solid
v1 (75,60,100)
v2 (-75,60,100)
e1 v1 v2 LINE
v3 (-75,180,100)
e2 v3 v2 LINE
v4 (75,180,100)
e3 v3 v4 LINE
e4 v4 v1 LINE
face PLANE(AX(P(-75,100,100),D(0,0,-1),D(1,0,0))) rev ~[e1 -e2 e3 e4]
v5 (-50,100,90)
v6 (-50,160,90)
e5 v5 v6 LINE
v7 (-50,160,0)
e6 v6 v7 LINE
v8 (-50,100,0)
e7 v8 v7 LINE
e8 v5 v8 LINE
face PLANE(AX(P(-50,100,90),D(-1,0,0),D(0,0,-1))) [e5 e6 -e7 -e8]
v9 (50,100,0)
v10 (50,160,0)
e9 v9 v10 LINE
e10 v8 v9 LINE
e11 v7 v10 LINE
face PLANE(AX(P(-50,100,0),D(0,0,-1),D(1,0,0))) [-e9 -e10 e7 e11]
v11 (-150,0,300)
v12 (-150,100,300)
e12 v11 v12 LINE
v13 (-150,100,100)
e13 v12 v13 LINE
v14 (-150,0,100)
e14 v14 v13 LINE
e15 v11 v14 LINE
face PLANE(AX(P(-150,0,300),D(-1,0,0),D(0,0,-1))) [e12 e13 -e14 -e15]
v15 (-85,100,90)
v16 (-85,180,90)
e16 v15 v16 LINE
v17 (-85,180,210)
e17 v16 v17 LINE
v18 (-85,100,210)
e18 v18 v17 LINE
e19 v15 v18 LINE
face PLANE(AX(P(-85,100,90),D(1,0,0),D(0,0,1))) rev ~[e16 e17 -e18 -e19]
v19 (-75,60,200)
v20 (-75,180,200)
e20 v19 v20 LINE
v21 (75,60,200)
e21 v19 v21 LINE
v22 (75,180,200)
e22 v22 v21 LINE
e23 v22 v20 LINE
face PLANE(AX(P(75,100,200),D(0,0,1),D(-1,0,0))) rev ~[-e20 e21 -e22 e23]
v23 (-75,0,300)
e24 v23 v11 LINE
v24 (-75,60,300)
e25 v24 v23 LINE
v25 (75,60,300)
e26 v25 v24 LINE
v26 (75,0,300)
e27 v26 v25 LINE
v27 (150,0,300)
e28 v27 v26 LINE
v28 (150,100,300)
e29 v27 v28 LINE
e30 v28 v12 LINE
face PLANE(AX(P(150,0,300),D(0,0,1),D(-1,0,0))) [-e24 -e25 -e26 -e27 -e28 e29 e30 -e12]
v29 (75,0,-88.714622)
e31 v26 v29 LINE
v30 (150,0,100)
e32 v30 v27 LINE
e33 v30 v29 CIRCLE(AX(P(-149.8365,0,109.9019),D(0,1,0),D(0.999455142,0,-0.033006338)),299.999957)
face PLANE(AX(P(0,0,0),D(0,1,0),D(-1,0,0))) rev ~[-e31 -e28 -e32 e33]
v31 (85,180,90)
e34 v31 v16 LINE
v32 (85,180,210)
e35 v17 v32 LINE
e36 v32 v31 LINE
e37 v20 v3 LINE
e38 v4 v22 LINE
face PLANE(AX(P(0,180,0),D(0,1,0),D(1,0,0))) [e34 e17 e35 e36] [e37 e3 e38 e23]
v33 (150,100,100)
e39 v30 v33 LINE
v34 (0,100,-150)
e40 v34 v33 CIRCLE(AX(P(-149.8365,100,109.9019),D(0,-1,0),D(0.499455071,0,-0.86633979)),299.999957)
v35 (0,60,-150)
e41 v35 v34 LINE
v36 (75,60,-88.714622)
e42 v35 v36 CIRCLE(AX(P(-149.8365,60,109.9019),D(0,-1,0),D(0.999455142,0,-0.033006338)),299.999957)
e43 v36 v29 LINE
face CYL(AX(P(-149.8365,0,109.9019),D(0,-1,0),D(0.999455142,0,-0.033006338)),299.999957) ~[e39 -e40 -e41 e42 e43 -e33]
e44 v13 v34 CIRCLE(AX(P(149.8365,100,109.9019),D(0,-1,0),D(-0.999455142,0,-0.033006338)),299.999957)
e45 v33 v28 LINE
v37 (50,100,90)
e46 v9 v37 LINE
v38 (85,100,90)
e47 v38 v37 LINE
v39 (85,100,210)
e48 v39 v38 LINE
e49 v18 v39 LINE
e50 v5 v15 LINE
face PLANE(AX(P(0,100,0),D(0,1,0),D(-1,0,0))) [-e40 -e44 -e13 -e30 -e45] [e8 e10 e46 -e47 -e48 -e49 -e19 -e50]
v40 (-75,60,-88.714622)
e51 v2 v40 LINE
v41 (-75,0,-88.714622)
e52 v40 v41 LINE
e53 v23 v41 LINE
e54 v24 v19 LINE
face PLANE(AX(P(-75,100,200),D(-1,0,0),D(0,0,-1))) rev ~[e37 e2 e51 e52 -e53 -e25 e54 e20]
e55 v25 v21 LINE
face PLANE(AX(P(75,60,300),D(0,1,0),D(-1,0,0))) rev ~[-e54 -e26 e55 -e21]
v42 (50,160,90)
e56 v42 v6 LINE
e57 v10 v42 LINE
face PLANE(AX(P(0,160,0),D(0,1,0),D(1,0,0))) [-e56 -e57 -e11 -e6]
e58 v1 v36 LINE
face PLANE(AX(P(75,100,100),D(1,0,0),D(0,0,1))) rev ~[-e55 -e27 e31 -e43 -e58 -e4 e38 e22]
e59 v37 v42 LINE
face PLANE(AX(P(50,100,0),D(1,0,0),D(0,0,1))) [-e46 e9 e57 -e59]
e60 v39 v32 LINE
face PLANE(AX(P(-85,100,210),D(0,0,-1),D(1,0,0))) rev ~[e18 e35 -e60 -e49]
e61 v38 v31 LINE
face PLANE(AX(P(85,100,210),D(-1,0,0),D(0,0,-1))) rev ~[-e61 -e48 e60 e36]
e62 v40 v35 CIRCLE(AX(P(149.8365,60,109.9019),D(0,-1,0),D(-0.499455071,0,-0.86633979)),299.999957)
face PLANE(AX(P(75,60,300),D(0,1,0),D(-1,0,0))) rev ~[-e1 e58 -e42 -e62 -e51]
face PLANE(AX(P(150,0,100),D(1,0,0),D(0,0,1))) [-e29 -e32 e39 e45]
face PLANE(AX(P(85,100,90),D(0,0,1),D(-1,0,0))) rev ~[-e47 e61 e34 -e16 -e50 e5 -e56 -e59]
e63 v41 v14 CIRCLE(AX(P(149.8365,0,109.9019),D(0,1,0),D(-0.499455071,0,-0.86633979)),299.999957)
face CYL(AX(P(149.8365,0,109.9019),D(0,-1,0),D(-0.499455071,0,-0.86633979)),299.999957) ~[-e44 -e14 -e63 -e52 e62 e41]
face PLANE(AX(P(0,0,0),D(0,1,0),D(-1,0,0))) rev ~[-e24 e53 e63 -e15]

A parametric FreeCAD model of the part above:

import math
import FreeCAD as App
import Part
import Sketcher

V = App.Vector
Q = App.Units.Quantity

doc = App.newDocument("Part")
body = doc.addObject("PartDesign::Body", "Body")

# Sketch on XZ plane
sketch1 = doc.addObject("Sketcher::SketchObject", "Sketch")
body.addObject(sketch1)
sketch1.AttachmentSupport = (doc.XZ_Plane, [""])
sketch1.MapMode = "FlatFace"
sketch1.addGeometry([
    Part.ArcOfCircle(Part.Circle(V(150, 110, 0), V(0, 0, 1), 300), math.radians(-178), math.radians(-120)),  # 0
    Part.LineSegment(V(-150, 100, 0), V(-150, 300, 0)),  # 1
    Part.LineSegment(V(-150, 300, 0), V(150, 300, 0)),  # 2
    Part.LineSegment(V(150, 300, 0), V(150, 100, 0)),  # 3
    Part.ArcOfCircle(Part.Circle(V(-150, 110, 0), V(0, 0, 1), 300), math.radians(-60), math.radians(-2)),  # 4
], False)
sketch1.addConstraint([
    Sketcher.Constraint("Coincident", 0, 1, 1, 1),
    Sketcher.Constraint("Coincident", 1, 2, 2, 1),
    Sketcher.Constraint("Coincident", 2, 2, 3, 1),
    Sketcher.Constraint("Coincident", 3, 2, 4, 2),
    Sketcher.Constraint("Coincident", 4, 1, 0, 2),
    Sketcher.Constraint("Vertical", 1),
    Sketcher.Constraint("Horizontal", 2),
    Sketcher.Constraint("Vertical", 3),
    Sketcher.Constraint("Equal", 0, 4),
    Sketcher.Constraint("Symmetric", 0, 3, 4, 3, -2),
    Sketcher.Constraint("Horizontal", 0, 1, 3, 2),
    Sketcher.Constraint("Radius", 0, Q("300 mm")),
    Sketcher.Constraint("DistanceX", 2, 1, 2, 2, Q("300 mm")),
    Sketcher.Constraint("DistanceY", -1, 1, 0, 1, Q("100 mm")),
    Sketcher.Constraint("DistanceY", -1, 1, 1, 2, Q("300 mm")),
    Sketcher.Constraint("DistanceY", 4, 1, -1, 1, Q("150 mm")),
])
pad1 = doc.addObject("PartDesign::Pad", "Pad")
body.addObject(pad1)
pad1.Profile = sketch1
pad1.Length = 100
pad1.Reversed = True

# Sketch on XY plane
sketch2 = doc.addObject("Sketcher::SketchObject", "Sketch001")
body.addObject(sketch2)
sketch2.AttachmentSupport = (doc.XY_Plane, [""])
sketch2.MapMode = "FlatFace"
sketch2.AttachmentOffset = App.Placement(V(0, 0, 300), App.Rotation())
sketch2.addGeometry([
    Part.LineSegment(V(-75, 60, 0), V(-75, 0, 0)),
    Part.LineSegment(V(-75, 0, 0), V(75, 0, 0)),
    Part.LineSegment(V(75, 0, 0), V(75, 60, 0)),
    Part.LineSegment(V(75, 60, 0), V(-75, 60, 0)),
], False)
sketch2.addConstraint([
    Sketcher.Constraint("Coincident", 0, 2, 1, 1),
    Sketcher.Constraint("Coincident", 1, 2, 2, 1),
    Sketcher.Constraint("Coincident", 2, 2, 3, 1),
    Sketcher.Constraint("Coincident", 3, 2, 0, 1),
    Sketcher.Constraint("Vertical", 0),
    Sketcher.Constraint("Horizontal", 1),
    Sketcher.Constraint("Vertical", 2),
    Sketcher.Constraint("Horizontal", 3),
    Sketcher.Constraint("Symmetric", 0, 2, 1, 2, -1, 1),
    Sketcher.Constraint("DistanceX", 1, 1, 1, 2, Q("150 mm")),
    Sketcher.Constraint("DistanceY", 0, 2, 0, 1, Q("60 mm")),
])
pocket1 = doc.addObject("PartDesign::Pocket", "Pocket")
body.addObject(pocket1)
pocket1.Profile = sketch2
pocket1.Type = "ThroughAll"

# Sketch on XZ plane
sketch3 = doc.addObject("Sketcher::SketchObject", "Sketch002")
body.addObject(sketch3)
sketch3.AttachmentSupport = (doc.XZ_Plane, [""])
sketch3.MapMode = "FlatFace"
sketch3.AttachmentOffset = App.Placement(V(0, 0, -60), App.Rotation())
sketch3.addGeometry([
    Part.LineSegment(V(-75, 200, 0), V(-75, 100, 0)),
    Part.LineSegment(V(-75, 100, 0), V(75, 100, 0)),
    Part.LineSegment(V(75, 100, 0), V(75, 200, 0)),
    Part.LineSegment(V(75, 200, 0), V(-75, 200, 0)),
], False)
sketch3.addConstraint([
    Sketcher.Constraint("Coincident", 0, 2, 1, 1),
    Sketcher.Constraint("Coincident", 1, 2, 2, 1),
    Sketcher.Constraint("Coincident", 2, 2, 3, 1),
    Sketcher.Constraint("Coincident", 3, 2, 0, 1),
    Sketcher.Constraint("Vertical", 0),
    Sketcher.Constraint("Horizontal", 1),
    Sketcher.Constraint("Vertical", 2),
    Sketcher.Constraint("Horizontal", 3),
    Sketcher.Constraint("DistanceY", 0, 2, 0, 1, Q("100 mm")),
    Sketcher.Constraint("DistanceY", -1, 1, 0, 2, Q("100 mm")),
    Sketcher.Constraint("DistanceX", 1, 1, 1, 2, Q("150 mm")),
    Sketcher.Constraint("DistanceX", 0, 2, -1, 1, Q("75 mm")),
])
pocket2 = doc.addObject("PartDesign::Pocket", "Pocket001")
body.addObject(pocket2)
pocket2.Profile = sketch3
pocket2.Type = "ThroughAll"

# Sketch on XZ plane
sketch4 = doc.addObject("Sketcher::SketchObject", "Sketch003")
body.addObject(sketch4)
sketch4.AttachmentSupport = (doc.XZ_Plane, [""])
sketch4.MapMode = "FlatFace"
sketch4.AttachmentOffset = App.Placement(V(0, 0, -100), App.Rotation())
sketch4.addGeometry([
    Part.LineSegment(V(85, 210, 0), V(85, 90, 0)),  # 0
    Part.LineSegment(V(85, 90, 0), V(-85, 90, 0)),  # 1
    Part.LineSegment(V(-85, 90, 0), V(-85, 210, 0)),  # 2
    Part.LineSegment(V(-85, 210, 0), V(85, 210, 0)),  # 3
    Part.LineSegment(V(75, 200, 0), V(-75, 200, 0)),  # 4
    Part.LineSegment(V(-75, 200, 0), V(-75, 100, 0)),  # 5
    Part.LineSegment(V(-75, 100, 0), V(75, 100, 0)),  # 6
    Part.LineSegment(V(75, 100, 0), V(75, 200, 0)),  # 7
], False)
sketch4.addConstraint([
    Sketcher.Constraint("Coincident", 0, 2, 1, 1),
    Sketcher.Constraint("Coincident", 1, 2, 2, 1),
    Sketcher.Constraint("Coincident", 2, 2, 3, 1),
    Sketcher.Constraint("Coincident", 3, 2, 0, 1),
    Sketcher.Constraint("Coincident", 4, 2, 5, 1),
    Sketcher.Constraint("Coincident", 5, 2, 6, 1),
    Sketcher.Constraint("Coincident", 6, 2, 7, 1),
    Sketcher.Constraint("Coincident", 7, 2, 4, 1),
    Sketcher.Constraint("Vertical", 0),
    Sketcher.Constraint("Horizontal", 1),
    Sketcher.Constraint("Vertical", 2),
    Sketcher.Constraint("Horizontal", 3),
    Sketcher.Constraint("Horizontal", 4),
    Sketcher.Constraint("Vertical", 5),
    Sketcher.Constraint("Horizontal", 6),
    Sketcher.Constraint("Vertical", 7),
    Sketcher.Constraint("DistanceX", 2, 2, 4, 2, Q("10 mm")),
    Sketcher.Constraint("DistanceY", 4, 2, 2, 2, Q("10 mm")),
    Sketcher.Constraint("DistanceY", 1, 2, 5, 2, Q("10 mm")),
    Sketcher.Constraint("DistanceX", 6, 2, 0, 2, Q("10 mm")),
    Sketcher.Constraint("DistanceX", 1, 2, 1, 1, Q("170 mm")),
    Sketcher.Constraint("DistanceY", 0, 2, 0, 1, Q("120 mm")),
    Sketcher.Constraint("DistanceX", -1, 1, 0, 2, Q("85 mm")),
    Sketcher.Constraint("DistanceY", -1, 1, 0, 2, Q("90 mm")),
])
pad2 = doc.addObject("PartDesign::Pad", "Pad001")
body.addObject(pad2)
pad2.Profile = sketch4
pad2.Length = 80
pad2.Reversed = True

# Sketch on XZ plane
sketch5 = doc.addObject("Sketcher::SketchObject", "Sketch004")
body.addObject(sketch5)
sketch5.AttachmentSupport = (doc.XZ_Plane, [""])
sketch5.MapMode = "FlatFace"
sketch5.AttachmentOffset = App.Placement(V(0, 0, -100), App.Rotation())
sketch5.addGeometry([
    Part.LineSegment(V(-50, 90, 0), V(50, 90, 0)),
    Part.LineSegment(V(50, 90, 0), V(50, 0, 0)),
    Part.LineSegment(V(50, 0, 0), V(-50, 0, 0)),
    Part.LineSegment(V(-50, 0, 0), V(-50, 90, 0)),
], False)
sketch5.addConstraint([
    Sketcher.Constraint("Coincident", 0, 2, 1, 1),
    Sketcher.Constraint("Coincident", 1, 2, 2, 1),
    Sketcher.Constraint("Coincident", 2, 2, 3, 1),
    Sketcher.Constraint("Coincident", 3, 2, 0, 1),
    Sketcher.Constraint("Horizontal", 0),
    Sketcher.Constraint("Vertical", 1),
    Sketcher.Constraint("Horizontal", 2),
    Sketcher.Constraint("Vertical", 3),
    Sketcher.Constraint("Symmetric", 1, 2, 2, 2, -1, 1),
    Sketcher.Constraint("DistanceX", 0, 1, 0, 2, Q("100 mm")),
    Sketcher.Constraint("DistanceY", 1, 2, 1, 1, Q("90 mm")),
])
pad3 = doc.addObject("PartDesign::Pad", "Pad002")
body.addObject(pad3)
pad3.Profile = sketch5
pad3.Length = 60
pad3.Reversed = True

doc.recompute()
